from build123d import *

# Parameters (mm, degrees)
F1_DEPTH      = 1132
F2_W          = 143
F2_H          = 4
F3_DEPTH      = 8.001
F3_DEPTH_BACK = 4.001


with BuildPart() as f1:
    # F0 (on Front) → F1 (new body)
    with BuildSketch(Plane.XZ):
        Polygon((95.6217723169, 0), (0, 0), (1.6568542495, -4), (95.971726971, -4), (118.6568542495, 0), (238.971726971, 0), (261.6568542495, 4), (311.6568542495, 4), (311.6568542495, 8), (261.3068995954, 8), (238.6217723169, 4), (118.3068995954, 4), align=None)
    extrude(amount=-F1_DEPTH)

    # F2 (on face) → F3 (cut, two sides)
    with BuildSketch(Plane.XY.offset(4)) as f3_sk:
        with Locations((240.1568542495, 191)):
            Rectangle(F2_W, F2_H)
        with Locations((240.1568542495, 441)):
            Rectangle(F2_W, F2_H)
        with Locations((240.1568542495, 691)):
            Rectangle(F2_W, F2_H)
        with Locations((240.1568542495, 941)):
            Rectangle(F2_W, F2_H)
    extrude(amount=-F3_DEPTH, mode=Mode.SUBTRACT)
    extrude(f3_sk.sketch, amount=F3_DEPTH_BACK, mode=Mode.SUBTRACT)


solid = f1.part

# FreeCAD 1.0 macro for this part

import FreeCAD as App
import Part
import Sketcher

V = App.Vector
Q = App.Units.Quantity


def add_polygon(sketch, points):
    """Adds a closed chain of lines whose ends are joined by coincident constraints."""
    first, n = sketch.GeometryCount, len(points)
    for a, b in zip(points, points[1:] + points[:1]):
        sketch.addGeometry(Part.LineSegment(App.Vector(*a, 0), App.Vector(*b, 0)), False)
    for i in range(n):
        sketch.addConstraint(Sketcher.Constraint("Coincident", first + i, 2, first + (i + 1) % n, 1))

doc = App.newDocument("Part")
body = doc.addObject("PartDesign::Body", "Body")

sketch1 = body.newObject("Sketcher::SketchObject", "Sketch")
sketch1.AttachmentSupport = (doc.getObject("XZ_Plane"), [""])
sketch1.MapMode = "FlatFace"
add_polygon(sketch1, [(95.6, 0), (0, 0), (1.7, -4), (96, -4), (118.7, 0), (239, 0), (261.7, 4), (311.7, 4), (311.7, 8), (261.3, 8), (238.6, 4), (118.3, 4)])
sketch1.addConstraint([
    Sketcher.Constraint("Horizontal", 0),
    Sketcher.Constraint("Horizontal", 2),
    Sketcher.Constraint("Horizontal", 4),
    Sketcher.Constraint("Horizontal", 6),
    Sketcher.Constraint("Vertical", 7),
    Sketcher.Constraint("Horizontal", 8),
    Sketcher.Constraint("Horizontal", 10),
    Sketcher.Constraint("Coincident", 0, 2, -1, 1),
    Sketcher.Constraint("PointOnObject", 3, 2, -1),
    Sketcher.Constraint("Parallel", 3, 5),
    Sketcher.Constraint("Parallel", 5, 9),
    Sketcher.Constraint("Parallel", 9, 11),
    Sketcher.Constraint("Horizontal", 6, 2, 9, 2),
    Sketcher.Constraint("Equal", 4, 10),
    Sketcher.Constraint("Equal", 3, 5),
    Sketcher.Constraint("Equal", 5, 9),
    Sketcher.Constraint("DistanceX", 6, 1, 6, 2, 50.0),
    Sketcher.Constraint("DistanceY", 7, 1, 7, 2, 4.0),
    Sketcher.Constraint("Angle", 3, Q("10 deg")),
    Sketcher.Constraint("Angle", 1, Q("-67.5 deg")),
    Sketcher.Constraint("DistanceX", 1, 2, 3, 2, 117.0),
    Sketcher.Constraint("DistanceX", 2, 2, 4, 2, 143.0),
    Sketcher.Constraint("DistanceX", -1, 1, 8, 2, 261.3069),
])
pad1 = body.newObject("PartDesign::Pad", "Pad")
pad1.Profile = sketch1
pad1.Length = 1132
pad1.Reversed = True

sketch2 = body.newObject("Sketcher::SketchObject", "Sketch001")
sketch2.AttachmentSupport = (doc.getObject("XY_Plane"), [""])
sketch2.MapMode = "FlatFace"
sketch2.AttachmentOffset = App.Placement(V(0, 0, 4), App.Rotation())
add_polygon(sketch2, [(168.7, 193), (168.7, 189), (311.7, 189), (311.7, 193)])
add_polygon(sketch2, [(168.7, 443), (168.7, 439), (311.7, 439), (311.7, 443)])
add_polygon(sketch2, [(168.7, 693), (168.7, 689), (311.7, 689), (311.7, 693)])
add_polygon(sketch2, [(168.7, 943), (168.7, 939), (311.7, 939), (311.7, 943)])
sketch2.addConstraint([
    Sketcher.Constraint("Vertical", 0),
    Sketcher.Constraint("Horizontal", 1),
    Sketcher.Constraint("Vertical", 2),
    Sketcher.Constraint("Horizontal", 3),
    Sketcher.Constraint("Vertical", 4),
    Sketcher.Constraint("Horizontal", 5),
    Sketcher.Constraint("Vertical", 6),
    Sketcher.Constraint("Horizontal", 7),
    Sketcher.Constraint("Vertical", 8),
    Sketcher.Constraint("Horizontal", 9),
    Sketcher.Constraint("Vertical", 10),
    Sketcher.Constraint("Horizontal", 11),
    Sketcher.Constraint("Vertical", 12),
    Sketcher.Constraint("Horizontal", 13),
    Sketcher.Constraint("Vertical", 14),
    Sketcher.Constraint("Horizontal", 15),
    Sketcher.Constraint("Vertical", 3, 2, 4, 2),
    Sketcher.Constraint("Vertical", 2, 2, 5, 2),
    Sketcher.Constraint("Vertical", 7, 2, 8, 2),
    Sketcher.Constraint("Vertical", 6, 2, 9, 2),
    Sketcher.Constraint("Vertical", 11, 2, 12, 2),
    Sketcher.Constraint("Vertical", 10, 2, 13, 2),
    Sketcher.Constraint("Equal", 2, 4),
    Sketcher.Constraint("Equal", 6, 8),
    Sketcher.Constraint("Equal", 10, 12),
    Sketcher.Constraint("DistanceX", 1, 1, 1, 2, 143.0),
    Sketcher.Constraint("DistanceY", 0, 2, 0, 1, 4.0),
    Sketcher.Constraint("DistanceY", -1, 1, 0, 2, 189.0),
    Sketcher.Constraint("DistanceY", -1, 1, 4, 2, 439.0),
    Sketcher.Constraint("DistanceY", -1, 1, 8, 2, 689.0),
    Sketcher.Constraint("DistanceY", -1, 1, 12, 2, 939.0),
    Sketcher.Constraint("DistanceX", -1, 1, 0, 2, 168.656854),
])
pocket1 = body.newObject("PartDesign::Pocket", "Pocket")
pocket1.Profile = sketch2
pocket1.Type = "ThroughAll"
pocket1.Midplane = True

doc.recompute()
